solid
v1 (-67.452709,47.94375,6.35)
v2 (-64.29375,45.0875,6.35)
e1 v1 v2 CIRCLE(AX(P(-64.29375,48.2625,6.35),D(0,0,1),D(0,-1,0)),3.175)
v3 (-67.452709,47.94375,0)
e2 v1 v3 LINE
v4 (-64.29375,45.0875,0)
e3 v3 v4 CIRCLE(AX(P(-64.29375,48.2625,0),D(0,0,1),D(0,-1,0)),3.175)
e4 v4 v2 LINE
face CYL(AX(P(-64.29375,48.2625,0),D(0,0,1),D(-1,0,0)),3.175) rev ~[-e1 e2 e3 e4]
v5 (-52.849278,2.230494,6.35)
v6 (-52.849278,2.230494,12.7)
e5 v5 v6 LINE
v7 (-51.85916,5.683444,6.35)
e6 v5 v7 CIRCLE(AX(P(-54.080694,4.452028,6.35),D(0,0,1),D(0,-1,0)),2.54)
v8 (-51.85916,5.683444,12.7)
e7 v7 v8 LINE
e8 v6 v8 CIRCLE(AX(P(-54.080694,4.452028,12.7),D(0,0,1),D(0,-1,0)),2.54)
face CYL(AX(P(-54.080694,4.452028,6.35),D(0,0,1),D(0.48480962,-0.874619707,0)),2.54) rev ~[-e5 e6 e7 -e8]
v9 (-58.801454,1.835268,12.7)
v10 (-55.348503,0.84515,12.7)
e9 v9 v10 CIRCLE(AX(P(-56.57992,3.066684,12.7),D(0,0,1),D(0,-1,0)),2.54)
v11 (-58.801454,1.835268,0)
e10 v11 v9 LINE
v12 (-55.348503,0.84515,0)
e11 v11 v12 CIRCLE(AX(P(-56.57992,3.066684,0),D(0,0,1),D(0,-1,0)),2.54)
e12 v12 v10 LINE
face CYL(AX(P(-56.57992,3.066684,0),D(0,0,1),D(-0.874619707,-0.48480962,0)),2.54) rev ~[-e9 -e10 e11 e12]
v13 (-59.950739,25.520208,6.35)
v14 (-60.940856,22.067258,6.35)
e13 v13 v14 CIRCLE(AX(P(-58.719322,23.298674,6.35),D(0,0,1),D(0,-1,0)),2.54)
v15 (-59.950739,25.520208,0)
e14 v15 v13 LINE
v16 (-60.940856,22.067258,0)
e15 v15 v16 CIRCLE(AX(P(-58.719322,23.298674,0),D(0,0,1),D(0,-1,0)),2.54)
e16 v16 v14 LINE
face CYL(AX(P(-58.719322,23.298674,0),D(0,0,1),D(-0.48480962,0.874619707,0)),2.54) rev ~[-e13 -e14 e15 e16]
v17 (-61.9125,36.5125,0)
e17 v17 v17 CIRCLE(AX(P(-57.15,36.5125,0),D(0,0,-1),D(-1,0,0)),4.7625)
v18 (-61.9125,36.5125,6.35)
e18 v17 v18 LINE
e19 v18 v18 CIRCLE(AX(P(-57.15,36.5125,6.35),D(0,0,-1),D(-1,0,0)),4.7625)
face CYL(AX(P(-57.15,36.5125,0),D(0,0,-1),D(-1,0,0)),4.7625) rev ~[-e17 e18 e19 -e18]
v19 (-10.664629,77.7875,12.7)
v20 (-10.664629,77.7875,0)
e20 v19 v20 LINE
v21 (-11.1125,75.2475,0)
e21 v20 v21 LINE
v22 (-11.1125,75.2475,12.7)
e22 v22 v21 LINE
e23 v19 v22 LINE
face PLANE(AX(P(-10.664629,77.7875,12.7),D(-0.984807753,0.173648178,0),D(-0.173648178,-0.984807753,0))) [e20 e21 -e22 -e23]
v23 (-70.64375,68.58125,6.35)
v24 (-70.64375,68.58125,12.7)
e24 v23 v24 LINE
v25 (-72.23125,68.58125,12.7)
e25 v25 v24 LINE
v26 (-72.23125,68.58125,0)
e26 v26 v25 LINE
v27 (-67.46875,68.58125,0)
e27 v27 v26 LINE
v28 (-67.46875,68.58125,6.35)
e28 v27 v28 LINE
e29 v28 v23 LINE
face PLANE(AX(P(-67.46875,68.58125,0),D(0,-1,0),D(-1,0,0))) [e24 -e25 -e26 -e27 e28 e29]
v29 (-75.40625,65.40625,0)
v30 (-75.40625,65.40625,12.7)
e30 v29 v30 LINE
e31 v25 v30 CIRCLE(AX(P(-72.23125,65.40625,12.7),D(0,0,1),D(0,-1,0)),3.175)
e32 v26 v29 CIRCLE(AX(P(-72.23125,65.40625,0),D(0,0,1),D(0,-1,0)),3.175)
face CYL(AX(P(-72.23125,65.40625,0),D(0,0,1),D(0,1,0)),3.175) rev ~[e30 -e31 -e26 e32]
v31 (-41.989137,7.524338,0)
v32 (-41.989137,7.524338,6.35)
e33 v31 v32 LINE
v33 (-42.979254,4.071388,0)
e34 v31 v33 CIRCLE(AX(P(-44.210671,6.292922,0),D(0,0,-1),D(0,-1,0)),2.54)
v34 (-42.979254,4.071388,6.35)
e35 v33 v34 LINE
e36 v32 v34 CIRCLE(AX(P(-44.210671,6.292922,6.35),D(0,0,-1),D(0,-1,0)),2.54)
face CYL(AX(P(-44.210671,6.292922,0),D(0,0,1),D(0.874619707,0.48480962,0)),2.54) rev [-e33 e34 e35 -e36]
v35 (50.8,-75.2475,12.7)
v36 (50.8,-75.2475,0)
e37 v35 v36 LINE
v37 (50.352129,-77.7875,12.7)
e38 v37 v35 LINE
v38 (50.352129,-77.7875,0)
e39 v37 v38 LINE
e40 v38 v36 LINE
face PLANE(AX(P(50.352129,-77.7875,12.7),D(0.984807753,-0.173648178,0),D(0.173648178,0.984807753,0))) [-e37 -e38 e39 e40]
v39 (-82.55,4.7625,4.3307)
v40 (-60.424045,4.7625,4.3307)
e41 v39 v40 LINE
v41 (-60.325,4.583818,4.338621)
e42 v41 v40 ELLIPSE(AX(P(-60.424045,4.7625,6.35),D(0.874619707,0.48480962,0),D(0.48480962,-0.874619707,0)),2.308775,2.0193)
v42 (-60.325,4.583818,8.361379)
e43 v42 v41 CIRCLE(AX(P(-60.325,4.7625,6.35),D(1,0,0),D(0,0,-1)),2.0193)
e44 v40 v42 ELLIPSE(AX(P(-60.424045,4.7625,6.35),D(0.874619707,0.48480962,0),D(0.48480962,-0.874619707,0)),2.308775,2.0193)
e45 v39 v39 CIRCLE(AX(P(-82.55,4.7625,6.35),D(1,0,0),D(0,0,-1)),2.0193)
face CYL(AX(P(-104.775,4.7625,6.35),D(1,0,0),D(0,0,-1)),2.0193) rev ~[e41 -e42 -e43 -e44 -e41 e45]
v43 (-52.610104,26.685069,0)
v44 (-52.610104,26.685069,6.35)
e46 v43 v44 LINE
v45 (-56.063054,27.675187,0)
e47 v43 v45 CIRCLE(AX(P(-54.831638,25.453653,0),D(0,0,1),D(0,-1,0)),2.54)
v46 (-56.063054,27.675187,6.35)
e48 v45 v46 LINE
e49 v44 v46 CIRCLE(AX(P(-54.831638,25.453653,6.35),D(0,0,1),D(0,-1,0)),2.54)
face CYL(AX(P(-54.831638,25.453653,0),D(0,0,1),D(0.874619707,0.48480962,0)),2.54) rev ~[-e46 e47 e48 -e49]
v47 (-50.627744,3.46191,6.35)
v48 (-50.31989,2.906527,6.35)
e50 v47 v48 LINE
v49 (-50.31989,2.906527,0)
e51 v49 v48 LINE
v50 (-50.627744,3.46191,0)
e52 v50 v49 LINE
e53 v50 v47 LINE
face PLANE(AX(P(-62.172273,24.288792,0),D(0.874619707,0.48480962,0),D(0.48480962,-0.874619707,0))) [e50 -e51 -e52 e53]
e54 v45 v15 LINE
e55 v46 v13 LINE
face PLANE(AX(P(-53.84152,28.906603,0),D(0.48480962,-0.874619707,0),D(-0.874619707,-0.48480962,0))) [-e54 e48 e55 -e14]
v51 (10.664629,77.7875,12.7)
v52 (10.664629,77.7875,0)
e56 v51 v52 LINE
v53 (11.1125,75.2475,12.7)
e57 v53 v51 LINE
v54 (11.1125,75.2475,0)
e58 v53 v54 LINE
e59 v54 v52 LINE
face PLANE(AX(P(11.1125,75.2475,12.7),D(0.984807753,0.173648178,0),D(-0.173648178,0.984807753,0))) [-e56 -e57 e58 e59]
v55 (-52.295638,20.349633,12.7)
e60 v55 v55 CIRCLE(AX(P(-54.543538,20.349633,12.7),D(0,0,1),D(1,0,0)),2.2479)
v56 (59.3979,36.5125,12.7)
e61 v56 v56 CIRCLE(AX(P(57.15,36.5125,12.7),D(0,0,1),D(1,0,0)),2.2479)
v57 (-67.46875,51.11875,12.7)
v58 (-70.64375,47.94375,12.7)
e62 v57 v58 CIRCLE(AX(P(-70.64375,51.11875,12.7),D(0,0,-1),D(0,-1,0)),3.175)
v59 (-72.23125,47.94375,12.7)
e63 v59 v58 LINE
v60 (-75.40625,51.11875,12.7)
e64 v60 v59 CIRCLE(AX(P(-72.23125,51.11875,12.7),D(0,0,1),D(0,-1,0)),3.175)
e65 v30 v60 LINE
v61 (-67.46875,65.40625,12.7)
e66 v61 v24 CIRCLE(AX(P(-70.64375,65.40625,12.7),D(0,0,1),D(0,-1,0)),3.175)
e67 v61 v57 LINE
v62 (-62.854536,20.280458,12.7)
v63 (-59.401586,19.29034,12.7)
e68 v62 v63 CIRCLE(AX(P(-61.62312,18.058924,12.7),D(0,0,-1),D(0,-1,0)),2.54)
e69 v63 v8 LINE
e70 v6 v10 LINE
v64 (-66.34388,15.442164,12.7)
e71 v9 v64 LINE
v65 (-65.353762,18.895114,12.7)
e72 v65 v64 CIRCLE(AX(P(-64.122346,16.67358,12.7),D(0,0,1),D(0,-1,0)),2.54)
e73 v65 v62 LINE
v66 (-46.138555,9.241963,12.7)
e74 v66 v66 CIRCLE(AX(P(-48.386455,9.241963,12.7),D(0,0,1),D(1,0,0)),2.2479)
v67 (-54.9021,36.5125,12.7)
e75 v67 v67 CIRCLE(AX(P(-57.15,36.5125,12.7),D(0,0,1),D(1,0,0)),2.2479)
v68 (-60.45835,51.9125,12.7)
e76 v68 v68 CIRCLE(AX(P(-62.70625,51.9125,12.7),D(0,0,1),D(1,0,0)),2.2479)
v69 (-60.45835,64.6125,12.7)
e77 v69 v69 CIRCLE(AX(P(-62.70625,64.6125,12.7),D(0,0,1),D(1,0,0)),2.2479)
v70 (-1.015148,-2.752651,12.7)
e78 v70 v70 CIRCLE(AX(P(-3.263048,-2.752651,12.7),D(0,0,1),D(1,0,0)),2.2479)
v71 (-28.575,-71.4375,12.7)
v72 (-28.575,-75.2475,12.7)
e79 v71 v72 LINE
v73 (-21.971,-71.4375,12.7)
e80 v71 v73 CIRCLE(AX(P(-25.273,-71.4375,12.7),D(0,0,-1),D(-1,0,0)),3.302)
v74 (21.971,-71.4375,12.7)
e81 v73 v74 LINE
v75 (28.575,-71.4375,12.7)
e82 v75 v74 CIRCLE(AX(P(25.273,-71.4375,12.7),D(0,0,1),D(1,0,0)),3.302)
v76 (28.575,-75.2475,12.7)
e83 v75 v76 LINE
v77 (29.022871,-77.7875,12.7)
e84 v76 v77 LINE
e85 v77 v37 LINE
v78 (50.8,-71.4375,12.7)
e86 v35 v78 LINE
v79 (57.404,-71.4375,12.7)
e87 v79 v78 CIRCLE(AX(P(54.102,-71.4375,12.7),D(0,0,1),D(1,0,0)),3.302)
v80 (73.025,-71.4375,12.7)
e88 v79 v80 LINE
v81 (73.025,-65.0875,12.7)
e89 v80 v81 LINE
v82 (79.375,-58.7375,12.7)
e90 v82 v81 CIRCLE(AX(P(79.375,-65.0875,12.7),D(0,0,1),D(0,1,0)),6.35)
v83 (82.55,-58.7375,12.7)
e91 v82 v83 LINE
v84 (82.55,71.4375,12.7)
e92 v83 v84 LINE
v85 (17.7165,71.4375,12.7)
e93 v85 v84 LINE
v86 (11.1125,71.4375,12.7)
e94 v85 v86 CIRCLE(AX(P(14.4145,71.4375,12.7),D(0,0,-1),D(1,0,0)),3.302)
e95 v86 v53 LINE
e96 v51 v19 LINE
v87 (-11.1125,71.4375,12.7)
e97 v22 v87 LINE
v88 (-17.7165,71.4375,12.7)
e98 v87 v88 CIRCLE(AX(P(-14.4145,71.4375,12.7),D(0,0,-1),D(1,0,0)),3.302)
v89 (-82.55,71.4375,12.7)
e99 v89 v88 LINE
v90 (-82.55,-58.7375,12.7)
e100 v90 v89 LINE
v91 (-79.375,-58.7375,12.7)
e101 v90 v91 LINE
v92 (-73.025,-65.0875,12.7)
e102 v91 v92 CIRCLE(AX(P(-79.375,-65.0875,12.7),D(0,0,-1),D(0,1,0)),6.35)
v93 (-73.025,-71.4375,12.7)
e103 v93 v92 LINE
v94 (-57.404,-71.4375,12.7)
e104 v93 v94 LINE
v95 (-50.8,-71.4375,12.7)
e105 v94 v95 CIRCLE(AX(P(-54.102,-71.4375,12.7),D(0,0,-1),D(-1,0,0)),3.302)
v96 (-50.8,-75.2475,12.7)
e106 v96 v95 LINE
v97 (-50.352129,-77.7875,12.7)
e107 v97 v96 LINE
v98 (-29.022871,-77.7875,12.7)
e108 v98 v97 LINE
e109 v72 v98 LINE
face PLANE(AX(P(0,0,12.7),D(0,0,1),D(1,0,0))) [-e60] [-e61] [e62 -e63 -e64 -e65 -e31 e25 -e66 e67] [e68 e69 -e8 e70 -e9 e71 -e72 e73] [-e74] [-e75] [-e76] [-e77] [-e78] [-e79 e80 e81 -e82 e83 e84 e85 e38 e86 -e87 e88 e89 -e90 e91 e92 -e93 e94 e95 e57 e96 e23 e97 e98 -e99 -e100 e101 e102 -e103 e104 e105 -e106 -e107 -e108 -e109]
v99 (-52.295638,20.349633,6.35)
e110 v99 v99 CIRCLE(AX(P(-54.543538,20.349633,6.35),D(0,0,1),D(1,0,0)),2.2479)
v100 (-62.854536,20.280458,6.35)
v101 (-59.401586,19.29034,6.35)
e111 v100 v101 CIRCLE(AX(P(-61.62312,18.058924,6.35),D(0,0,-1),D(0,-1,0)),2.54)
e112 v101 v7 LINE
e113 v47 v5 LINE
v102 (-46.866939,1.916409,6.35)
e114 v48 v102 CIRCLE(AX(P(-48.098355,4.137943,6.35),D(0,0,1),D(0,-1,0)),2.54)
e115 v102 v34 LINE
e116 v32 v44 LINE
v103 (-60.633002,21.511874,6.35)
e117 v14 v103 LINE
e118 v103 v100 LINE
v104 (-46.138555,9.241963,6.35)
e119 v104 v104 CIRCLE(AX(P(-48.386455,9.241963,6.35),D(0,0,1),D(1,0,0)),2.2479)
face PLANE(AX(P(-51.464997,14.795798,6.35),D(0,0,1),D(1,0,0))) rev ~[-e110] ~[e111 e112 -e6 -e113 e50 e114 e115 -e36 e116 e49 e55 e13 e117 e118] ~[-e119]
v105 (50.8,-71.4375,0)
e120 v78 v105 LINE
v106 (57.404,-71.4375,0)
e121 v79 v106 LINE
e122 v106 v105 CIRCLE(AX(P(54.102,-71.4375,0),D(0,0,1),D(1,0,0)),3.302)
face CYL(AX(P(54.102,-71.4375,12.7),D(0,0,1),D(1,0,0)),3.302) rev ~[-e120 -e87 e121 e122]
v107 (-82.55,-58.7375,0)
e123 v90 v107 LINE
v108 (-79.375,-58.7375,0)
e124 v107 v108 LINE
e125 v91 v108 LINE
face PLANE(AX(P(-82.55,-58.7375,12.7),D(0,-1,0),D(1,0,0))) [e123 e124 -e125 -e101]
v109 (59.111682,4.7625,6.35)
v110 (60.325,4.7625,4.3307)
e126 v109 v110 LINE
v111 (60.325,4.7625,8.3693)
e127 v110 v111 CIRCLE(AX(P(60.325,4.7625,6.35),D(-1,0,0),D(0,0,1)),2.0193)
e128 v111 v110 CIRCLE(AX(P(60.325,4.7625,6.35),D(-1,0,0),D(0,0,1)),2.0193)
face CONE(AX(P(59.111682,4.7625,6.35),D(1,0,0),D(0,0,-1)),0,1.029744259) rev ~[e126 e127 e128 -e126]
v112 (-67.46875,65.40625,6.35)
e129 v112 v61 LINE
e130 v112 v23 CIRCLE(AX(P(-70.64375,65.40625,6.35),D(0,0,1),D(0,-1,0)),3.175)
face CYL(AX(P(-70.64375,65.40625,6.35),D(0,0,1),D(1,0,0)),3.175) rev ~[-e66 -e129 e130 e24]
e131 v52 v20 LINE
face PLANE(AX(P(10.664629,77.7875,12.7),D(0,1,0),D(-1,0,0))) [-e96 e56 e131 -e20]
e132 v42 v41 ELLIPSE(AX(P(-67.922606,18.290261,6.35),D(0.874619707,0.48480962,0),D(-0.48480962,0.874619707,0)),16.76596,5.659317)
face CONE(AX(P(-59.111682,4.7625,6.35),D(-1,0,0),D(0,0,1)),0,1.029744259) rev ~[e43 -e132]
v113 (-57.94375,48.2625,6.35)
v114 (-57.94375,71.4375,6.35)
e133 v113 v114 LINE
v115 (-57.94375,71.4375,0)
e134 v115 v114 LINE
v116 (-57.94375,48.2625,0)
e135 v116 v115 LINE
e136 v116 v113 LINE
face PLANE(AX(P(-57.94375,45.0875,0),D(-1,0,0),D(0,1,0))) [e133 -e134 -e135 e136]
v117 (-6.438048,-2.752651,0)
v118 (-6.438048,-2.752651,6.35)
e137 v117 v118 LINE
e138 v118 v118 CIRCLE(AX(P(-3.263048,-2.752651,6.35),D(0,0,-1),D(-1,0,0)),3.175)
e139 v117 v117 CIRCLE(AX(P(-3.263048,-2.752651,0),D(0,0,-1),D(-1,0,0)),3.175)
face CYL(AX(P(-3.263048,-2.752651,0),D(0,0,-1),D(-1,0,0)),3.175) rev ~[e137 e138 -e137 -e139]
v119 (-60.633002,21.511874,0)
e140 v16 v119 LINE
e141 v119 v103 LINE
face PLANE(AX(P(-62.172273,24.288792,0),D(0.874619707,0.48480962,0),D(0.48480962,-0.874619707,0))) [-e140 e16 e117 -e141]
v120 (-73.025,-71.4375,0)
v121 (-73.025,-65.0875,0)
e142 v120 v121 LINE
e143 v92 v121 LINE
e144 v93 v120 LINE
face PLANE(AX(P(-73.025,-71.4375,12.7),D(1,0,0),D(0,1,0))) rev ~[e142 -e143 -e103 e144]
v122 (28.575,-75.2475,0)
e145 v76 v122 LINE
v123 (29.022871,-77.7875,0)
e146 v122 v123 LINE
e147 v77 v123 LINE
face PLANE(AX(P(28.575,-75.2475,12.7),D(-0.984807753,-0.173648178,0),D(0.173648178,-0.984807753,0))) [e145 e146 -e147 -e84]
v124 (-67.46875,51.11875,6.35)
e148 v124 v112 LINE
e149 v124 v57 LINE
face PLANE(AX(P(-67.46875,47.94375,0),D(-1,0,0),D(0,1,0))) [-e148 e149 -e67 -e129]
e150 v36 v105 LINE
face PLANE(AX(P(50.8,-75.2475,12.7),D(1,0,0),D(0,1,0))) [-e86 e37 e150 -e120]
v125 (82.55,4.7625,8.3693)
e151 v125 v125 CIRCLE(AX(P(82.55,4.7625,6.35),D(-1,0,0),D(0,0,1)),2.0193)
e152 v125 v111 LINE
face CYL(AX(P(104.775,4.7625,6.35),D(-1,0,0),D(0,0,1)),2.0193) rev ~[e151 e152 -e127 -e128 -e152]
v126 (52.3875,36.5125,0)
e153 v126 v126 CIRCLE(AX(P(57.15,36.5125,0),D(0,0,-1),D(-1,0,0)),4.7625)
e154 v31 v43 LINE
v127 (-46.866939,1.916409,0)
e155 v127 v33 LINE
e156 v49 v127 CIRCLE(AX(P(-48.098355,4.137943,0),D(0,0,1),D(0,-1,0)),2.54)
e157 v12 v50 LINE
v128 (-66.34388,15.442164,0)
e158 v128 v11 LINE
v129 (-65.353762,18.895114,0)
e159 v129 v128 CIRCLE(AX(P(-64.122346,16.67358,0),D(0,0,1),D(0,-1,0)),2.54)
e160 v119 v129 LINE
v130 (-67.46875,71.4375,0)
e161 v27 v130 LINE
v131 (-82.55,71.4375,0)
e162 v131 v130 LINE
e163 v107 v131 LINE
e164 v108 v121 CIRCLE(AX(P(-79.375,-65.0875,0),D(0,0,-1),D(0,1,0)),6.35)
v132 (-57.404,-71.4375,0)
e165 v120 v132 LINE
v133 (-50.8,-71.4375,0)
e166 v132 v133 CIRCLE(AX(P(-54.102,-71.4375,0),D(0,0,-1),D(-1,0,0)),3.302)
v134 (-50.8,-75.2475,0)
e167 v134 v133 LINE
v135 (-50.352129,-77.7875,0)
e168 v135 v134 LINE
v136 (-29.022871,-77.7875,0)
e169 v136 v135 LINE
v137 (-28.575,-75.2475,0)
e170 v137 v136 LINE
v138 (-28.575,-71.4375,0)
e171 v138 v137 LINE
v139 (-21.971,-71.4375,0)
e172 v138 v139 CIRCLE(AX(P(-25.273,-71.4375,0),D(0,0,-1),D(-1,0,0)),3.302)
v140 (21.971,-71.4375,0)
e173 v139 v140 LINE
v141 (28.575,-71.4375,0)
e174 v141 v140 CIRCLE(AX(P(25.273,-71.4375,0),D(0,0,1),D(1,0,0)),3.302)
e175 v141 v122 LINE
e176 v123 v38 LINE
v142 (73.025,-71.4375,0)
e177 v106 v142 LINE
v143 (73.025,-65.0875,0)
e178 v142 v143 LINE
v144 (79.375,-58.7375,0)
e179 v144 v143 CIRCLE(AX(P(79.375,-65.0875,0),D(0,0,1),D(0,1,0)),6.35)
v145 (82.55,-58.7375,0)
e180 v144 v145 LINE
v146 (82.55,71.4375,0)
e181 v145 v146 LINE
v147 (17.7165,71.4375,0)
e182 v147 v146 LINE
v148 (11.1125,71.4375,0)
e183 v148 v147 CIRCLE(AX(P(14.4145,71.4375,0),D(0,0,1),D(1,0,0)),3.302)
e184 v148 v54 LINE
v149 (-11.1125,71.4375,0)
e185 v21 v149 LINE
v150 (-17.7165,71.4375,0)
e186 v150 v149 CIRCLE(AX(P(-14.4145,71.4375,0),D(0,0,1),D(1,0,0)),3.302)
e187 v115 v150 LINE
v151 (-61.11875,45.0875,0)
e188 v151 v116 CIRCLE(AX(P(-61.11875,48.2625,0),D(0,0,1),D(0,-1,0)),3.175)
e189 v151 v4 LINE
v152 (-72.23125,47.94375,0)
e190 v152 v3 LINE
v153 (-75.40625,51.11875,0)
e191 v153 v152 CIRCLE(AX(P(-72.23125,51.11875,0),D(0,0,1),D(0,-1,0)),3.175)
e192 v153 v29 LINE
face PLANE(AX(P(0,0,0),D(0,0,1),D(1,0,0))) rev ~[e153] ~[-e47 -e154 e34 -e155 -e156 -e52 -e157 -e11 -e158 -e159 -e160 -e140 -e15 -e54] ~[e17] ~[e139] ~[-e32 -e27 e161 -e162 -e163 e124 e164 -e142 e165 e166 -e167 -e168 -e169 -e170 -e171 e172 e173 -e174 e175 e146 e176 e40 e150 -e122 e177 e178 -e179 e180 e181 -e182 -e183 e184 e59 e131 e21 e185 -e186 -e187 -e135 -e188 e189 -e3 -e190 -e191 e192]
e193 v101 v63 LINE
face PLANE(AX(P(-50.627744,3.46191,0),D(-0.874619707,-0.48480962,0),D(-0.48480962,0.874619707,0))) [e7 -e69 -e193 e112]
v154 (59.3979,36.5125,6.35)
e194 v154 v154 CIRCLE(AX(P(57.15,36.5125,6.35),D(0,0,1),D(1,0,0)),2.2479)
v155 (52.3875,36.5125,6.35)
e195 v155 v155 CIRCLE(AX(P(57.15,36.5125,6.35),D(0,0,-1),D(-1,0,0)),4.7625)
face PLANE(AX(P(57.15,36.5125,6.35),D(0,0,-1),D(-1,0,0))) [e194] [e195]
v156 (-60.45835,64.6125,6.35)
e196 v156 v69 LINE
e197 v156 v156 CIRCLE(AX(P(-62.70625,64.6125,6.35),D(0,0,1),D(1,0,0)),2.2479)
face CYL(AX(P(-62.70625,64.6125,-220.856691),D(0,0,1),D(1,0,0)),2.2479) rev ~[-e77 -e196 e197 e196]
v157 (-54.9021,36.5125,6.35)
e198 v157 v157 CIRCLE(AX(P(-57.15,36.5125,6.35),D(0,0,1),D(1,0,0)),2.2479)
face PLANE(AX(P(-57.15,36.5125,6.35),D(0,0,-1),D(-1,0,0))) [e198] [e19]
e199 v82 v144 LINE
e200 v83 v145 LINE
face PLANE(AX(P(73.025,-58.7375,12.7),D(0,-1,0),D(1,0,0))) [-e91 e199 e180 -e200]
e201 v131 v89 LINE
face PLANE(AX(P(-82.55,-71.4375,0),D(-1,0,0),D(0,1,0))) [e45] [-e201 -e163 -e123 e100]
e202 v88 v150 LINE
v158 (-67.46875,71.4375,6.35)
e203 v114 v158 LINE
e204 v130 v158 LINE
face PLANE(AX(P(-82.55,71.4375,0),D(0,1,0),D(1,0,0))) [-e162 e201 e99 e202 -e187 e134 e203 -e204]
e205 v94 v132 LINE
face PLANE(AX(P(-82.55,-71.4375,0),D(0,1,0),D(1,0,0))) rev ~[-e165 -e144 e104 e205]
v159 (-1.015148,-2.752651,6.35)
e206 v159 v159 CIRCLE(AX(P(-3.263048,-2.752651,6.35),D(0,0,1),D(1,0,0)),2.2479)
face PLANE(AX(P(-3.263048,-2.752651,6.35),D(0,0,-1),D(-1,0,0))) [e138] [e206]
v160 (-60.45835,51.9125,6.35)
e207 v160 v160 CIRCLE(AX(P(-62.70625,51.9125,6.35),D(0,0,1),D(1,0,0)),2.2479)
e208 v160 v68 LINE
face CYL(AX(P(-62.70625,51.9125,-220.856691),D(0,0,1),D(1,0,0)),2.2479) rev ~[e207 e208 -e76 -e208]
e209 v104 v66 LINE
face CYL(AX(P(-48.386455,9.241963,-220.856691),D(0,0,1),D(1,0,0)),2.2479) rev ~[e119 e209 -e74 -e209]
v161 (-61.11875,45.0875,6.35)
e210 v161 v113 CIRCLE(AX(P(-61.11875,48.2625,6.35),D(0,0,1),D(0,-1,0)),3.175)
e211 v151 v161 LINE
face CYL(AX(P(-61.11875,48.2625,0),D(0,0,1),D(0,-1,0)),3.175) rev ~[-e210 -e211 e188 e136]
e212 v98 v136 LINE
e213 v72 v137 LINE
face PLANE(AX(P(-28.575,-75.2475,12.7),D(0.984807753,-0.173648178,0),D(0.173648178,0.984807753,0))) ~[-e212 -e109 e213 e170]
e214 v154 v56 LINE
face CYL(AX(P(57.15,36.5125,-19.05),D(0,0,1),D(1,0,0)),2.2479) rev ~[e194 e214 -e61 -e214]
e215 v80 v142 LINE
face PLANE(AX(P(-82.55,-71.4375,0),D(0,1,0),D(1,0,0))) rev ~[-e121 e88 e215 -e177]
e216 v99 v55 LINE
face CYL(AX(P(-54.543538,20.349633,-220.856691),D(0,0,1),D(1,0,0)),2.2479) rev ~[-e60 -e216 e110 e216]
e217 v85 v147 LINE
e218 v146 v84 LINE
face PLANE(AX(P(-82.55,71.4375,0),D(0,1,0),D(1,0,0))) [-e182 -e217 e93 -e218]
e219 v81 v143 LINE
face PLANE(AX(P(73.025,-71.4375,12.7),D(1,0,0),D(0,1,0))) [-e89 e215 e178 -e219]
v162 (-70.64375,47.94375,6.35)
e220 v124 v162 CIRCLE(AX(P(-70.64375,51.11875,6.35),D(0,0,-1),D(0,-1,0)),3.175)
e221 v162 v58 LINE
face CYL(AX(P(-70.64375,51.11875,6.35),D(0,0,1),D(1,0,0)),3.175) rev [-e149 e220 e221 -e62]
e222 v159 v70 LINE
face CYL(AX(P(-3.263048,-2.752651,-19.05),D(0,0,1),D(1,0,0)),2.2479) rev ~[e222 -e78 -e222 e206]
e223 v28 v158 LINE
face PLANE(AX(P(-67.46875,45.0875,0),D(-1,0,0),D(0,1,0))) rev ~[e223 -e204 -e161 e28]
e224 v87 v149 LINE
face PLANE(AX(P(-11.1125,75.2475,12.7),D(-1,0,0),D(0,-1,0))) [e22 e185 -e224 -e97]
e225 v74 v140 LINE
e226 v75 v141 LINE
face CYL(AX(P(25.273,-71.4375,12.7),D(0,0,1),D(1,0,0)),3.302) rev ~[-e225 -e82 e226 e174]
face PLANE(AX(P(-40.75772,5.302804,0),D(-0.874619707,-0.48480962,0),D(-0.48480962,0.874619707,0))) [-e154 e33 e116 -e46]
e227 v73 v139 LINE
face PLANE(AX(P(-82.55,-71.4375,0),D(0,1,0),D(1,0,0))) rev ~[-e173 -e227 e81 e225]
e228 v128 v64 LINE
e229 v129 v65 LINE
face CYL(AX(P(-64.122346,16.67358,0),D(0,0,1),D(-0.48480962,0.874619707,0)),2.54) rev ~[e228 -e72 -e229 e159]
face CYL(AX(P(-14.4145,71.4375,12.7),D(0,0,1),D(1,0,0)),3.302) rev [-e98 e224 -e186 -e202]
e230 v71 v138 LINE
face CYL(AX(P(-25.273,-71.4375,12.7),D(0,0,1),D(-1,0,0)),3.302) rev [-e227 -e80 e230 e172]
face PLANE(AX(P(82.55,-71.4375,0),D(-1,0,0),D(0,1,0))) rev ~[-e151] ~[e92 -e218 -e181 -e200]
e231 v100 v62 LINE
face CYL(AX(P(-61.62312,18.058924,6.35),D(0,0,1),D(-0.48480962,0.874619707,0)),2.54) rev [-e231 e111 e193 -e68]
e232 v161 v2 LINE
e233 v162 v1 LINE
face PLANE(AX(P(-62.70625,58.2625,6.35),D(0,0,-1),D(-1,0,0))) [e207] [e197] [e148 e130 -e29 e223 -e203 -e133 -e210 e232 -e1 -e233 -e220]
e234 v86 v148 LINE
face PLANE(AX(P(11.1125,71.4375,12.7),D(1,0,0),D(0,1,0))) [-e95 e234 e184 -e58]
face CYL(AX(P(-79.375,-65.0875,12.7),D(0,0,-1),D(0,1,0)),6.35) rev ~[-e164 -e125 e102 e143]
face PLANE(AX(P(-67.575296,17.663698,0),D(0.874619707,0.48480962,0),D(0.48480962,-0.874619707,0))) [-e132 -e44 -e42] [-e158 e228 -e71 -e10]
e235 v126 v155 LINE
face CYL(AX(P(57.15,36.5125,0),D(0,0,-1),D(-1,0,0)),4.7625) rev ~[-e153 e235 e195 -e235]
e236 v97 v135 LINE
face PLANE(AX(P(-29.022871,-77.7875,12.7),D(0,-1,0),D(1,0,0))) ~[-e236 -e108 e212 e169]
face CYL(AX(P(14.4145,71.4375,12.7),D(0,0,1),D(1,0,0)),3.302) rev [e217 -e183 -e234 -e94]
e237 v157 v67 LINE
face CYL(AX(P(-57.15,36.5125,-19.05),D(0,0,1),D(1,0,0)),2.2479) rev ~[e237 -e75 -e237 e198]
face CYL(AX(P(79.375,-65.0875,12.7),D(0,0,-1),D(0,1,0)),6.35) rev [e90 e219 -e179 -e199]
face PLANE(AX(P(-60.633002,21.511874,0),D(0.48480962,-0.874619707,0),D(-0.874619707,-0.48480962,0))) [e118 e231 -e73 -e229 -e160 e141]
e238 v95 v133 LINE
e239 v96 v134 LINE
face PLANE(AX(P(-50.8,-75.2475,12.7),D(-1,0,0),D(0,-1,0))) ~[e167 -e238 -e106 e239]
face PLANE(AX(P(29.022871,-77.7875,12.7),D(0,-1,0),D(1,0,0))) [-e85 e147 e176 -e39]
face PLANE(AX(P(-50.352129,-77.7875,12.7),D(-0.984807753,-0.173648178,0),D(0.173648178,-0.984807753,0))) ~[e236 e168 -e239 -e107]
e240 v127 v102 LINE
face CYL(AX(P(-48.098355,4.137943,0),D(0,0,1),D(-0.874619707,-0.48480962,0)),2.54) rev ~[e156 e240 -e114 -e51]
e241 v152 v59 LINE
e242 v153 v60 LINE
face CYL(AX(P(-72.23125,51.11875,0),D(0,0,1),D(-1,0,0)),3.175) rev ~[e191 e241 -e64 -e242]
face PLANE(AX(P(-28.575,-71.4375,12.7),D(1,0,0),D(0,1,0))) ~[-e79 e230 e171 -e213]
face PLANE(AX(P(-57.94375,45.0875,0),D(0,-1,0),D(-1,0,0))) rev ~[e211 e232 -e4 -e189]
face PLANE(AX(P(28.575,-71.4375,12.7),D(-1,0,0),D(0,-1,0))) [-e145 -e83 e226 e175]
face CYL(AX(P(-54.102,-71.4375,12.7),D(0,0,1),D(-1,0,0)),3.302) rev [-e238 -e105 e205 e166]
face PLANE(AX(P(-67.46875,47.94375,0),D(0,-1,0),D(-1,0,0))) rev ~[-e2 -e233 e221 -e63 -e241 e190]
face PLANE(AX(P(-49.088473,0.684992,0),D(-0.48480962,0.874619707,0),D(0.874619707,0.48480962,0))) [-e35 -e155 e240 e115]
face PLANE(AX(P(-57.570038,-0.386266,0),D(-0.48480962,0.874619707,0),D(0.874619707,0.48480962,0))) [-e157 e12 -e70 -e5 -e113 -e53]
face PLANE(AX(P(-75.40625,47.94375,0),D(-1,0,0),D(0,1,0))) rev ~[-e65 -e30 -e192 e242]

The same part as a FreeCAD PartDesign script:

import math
import FreeCAD as App
import Part
import Sketcher
Q = App.Units.Quantity


def edges_at(feature, points):
    """Names of the edges that pass closest to the given points."""
    edges = feature.Shape.Edges
    near = lambda p: min(range(len(edges)), key=lambda i: edges[i].distToShape(Part.Vertex(*p))[0])
    return sorted({f"Edge{near(p) + 1}" for p in points})

doc = App.newDocument("Part")
body = doc.addObject("PartDesign::Body", "Body")

# Sketch on XY plane
sketch1 = body.newObject("Sketcher::SketchObject", "Sketch")
sketch1.AttachmentSupport = (doc.getObject("XY_Plane"), [""])
sketch1.MapMode = "FlatFace"
sketch1.addGeometry([
    Part.LineSegment(App.Vector(-83, 71, 0), App.Vector(-83, -71, 0)),
    Part.LineSegment(App.Vector(-83, -71, 0), App.Vector(83, -71, 0)),
    Part.LineSegment(App.Vector(83, -71, 0), App.Vector(83, 71, 0)),
    Part.LineSegment(App.Vector(83, 71, 0), App.Vector(-83, 71, 0)),
], False)
sketch1.addConstraint([
    Sketcher.Constraint("Coincident", 0, 2, 1, 1),
    Sketcher.Constraint("Coincident", 1, 2, 2, 1),
    Sketcher.Constraint("Coincident", 2, 2, 3, 1),
    Sketcher.Constraint("Coincident", 3, 2, 0, 1),
    Sketcher.Constraint("Vertical", 0),
    Sketcher.Constraint("Horizontal", 1),
    Sketcher.Constraint("Vertical", 2),
    Sketcher.Constraint("Horizontal", 3),
    Sketcher.Constraint("Symmetric", 0, 2, 2, 2, -1, 1),
    Sketcher.Constraint("DistanceX", 1, 1, 1, 2, Q("6.5 in")),
    Sketcher.Constraint("DistanceY", 0, 2, 0, 1, Q("5.625 in")),
])
pad1 = body.newObject("PartDesign::Pad", "Pad")
pad1.Profile = sketch1
pad1.Length = Q("0.5 in")

# Sketch on XY plane
sketch2 = body.newObject("Sketcher::SketchObject", "Sketch001")
sketch2.AttachmentSupport = (doc.getObject("XY_Plane"), [""])
sketch2.MapMode = "FlatFace"
sketch2.AttachmentOffset = App.Placement(App.Vector(0, 0, 0.5 * 25.4), App.Rotation())
sketch2.addGeometry([
    Part.LineSegment(App.Vector(-11.1, 71.4, 0), App.Vector(11.1, 71.4, 0)),  # 0
    Part.LineSegment(App.Vector(11.1, 71.4, 0), App.Vector(11.1, 75.2, 0)),  # 1
    Part.LineSegment(App.Vector(11.1, 75.2, 0), App.Vector(10.7, 77.8, 0)),  # 2
    Part.LineSegment(App.Vector(10.7, 77.8, 0), App.Vector(-10.7, 77.8, 0)),  # 3
    Part.LineSegment(App.Vector(-10.7, 77.8, 0), App.Vector(-11.1, 75.2, 0)),  # 4
    Part.LineSegment(App.Vector(-11.1, 75.2, 0), App.Vector(-11.1, 71.4, 0)),  # 5
], False)
sketch2.addConstraint([
    Sketcher.Constraint("Coincident", 0, 2, 1, 1),
    Sketcher.Constraint("Coincident", 1, 2, 2, 1),
    Sketcher.Constraint("Coincident", 2, 2, 3, 1),
    Sketcher.Constraint("Coincident", 3, 2, 4, 1),
    Sketcher.Constraint("Coincident", 4, 2, 5, 1),
    Sketcher.Constraint("Coincident", 5, 2, 0, 1),
    Sketcher.Constraint("Horizontal", 0),
    Sketcher.Constraint("Vertical", 1),
    Sketcher.Constraint("Horizontal", 3),
    Sketcher.Constraint("Vertical", 5),
    Sketcher.Constraint("Symmetric", 1, 2, 4, 2, -2),
    Sketcher.Constraint("Equal", 2, 4),
    Sketcher.Constraint("Angle", 2, Q("100 deg")),
    Sketcher.Constraint("DistanceY", 1, 1, 1, 2, Q("0.15 in")),
    Sketcher.Constraint("DistanceY", 1, 2, 2, 2, Q("0.1 in")),
    Sketcher.Constraint("DistanceX", 0, 1, 0, 2, Q("0.875 in")),
    Sketcher.Constraint("DistanceY", -1, 1, 0, 2, Q("2.8125 in")),
])
pad2 = body.newObject("PartDesign::Pad", "Pad001")
pad2.Profile = sketch2
pad2.Length = Q("0.5 in")
pad2.Reversed = True

# Sketch on XY plane
sketch3 = body.newObject("Sketcher::SketchObject", "Sketch002")
sketch3.AttachmentSupport = (doc.getObject("XY_Plane"), [""])
sketch3.MapMode = "FlatFace"
sketch3.AttachmentOffset = App.Placement(App.Vector(0, 0, 0.5 * 25.4), App.Rotation())
sketch3.addGeometry([
    Part.LineSegment(App.Vector(-11.1, 71.4, 0), App.Vector(-17.7, 71.4, 0)),
    Part.ArcOfCircle(Part.Circle(App.Vector(-14.4, 71.4, 0), App.Vector(0, 0, 1), 3.3), math.radians(180), math.radians(360)),
], False)
sketch3.addConstraint([
    Sketcher.Constraint("Coincident", 0, 1, 1, 2),
    Sketcher.Constraint("Coincident", 1, 1, 0, 2),
    Sketcher.Constraint("Horizontal", 0),
    Sketcher.Constraint("Horizontal", 1, 3, 0, 1),
    Sketcher.Constraint("Radius", 1, Q("0.13 in")),
    Sketcher.Constraint("DistanceY", -1, 1, 1, 3, Q("2.8125 in")),
    Sketcher.Constraint("DistanceX", 0, 1, -1, 1, Q("0.4375 in")),
])
pocket1 = body.newObject("PartDesign::Pocket", "Pocket")
pocket1.Profile = sketch3
pocket1.Type = "UpToFirst"

# Sketch on XY plane
sketch4 = body.newObject("Sketcher::SketchObject", "Sketch003")
sketch4.AttachmentSupport = (doc.getObject("XY_Plane"), [""])
sketch4.MapMode = "FlatFace"
sketch4.AttachmentOffset = App.Placement(App.Vector(0, 0, 0.5 * 25.4), App.Rotation())
sketch4.addGeometry([
    Part.LineSegment(App.Vector(17.7, 71.4, 0), App.Vector(11.1, 71.4, 0)),
    Part.ArcOfCircle(Part.Circle(App.Vector(14.4, 71.4, 0), App.Vector(0, 0, 1), 3.3), math.radians(180), math.radians(360)),
], False)
sketch4.addConstraint([
    Sketcher.Constraint("Coincident", 0, 1, 1, 2),
    Sketcher.Constraint("Coincident", 1, 1, 0, 2),
    Sketcher.Constraint("Horizontal", 0),
    Sketcher.Constraint("Horizontal", 1, 3, 0, 1),
    Sketcher.Constraint("Radius", 1, Q("0.13 in")),
    Sketcher.Constraint("DistanceY", -1, 1, 1, 3, Q("2.8125 in")),
    Sketcher.Constraint("DistanceX", -1, 1, 1, 1, Q("0.4375 in")),
])
pocket2 = body.newObject("PartDesign::Pocket", "Pocket001")
pocket2.Profile = sketch4
pocket2.Type = "UpToFirst"

# Sketch on XY plane
sketch5 = body.newObject("Sketcher::SketchObject", "Sketch004")
sketch5.AttachmentSupport = (doc.getObject("XY_Plane"), [""])
sketch5.MapMode = "FlatFace"
sketch5.AttachmentOffset = App.Placement(App.Vector(0, 0, 0.5 * 25.4), App.Rotation())
sketch5.addGeometry([
    Part.LineSegment(App.Vector(50.8, -71.4, 0), App.Vector(28.6, -71.4, 0)),  # 0
    Part.LineSegment(App.Vector(28.6, -71.4, 0), App.Vector(28.6, -75.2, 0)),  # 1
    Part.LineSegment(App.Vector(28.6, -75.2, 0), App.Vector(29, -77.8, 0)),  # 2
    Part.LineSegment(App.Vector(29, -77.8, 0), App.Vector(50.4, -77.8, 0)),  # 3
    Part.LineSegment(App.Vector(50.4, -77.8, 0), App.Vector(50.8, -75.2, 0)),  # 4
    Part.LineSegment(App.Vector(50.8, -75.2, 0), App.Vector(50.8, -71.4, 0)),  # 5
], False)
sketch5.addConstraint([
    Sketcher.Constraint("Coincident", 0, 2, 1, 1),
    Sketcher.Constraint("Coincident", 1, 2, 2, 1),
    Sketcher.Constraint("Coincident", 2, 2, 3, 1),
    Sketcher.Constraint("Coincident", 3, 2, 4, 1),
    Sketcher.Constraint("Coincident", 4, 2, 5, 1),
    Sketcher.Constraint("Coincident", 5, 2, 0, 1),
    Sketcher.Constraint("Horizontal", 0),
    Sketcher.Constraint("Vertical", 1),
    Sketcher.Constraint("Horizontal", 3),
    Sketcher.Constraint("Vertical", 5),
    Sketcher.Constraint("Horizontal", 1, 2, 4, 2),
    Sketcher.Constraint("Equal", 2, 4),
    Sketcher.Constraint("DistanceX", -1, 1, 4, 2, Q("2 in")),
    Sketcher.Constraint("Angle", 2, Q("-80 deg")),
    Sketcher.Constraint("DistanceY", 1, 2, 1, 1, Q("0.15 in")),
    Sketcher.Constraint("DistanceY", 2, 2, 1, 2, Q("0.1 in")),
    Sketcher.Constraint("DistanceX", 0, 2, 0, 1, Q("0.875 in")),
    Sketcher.Constraint("DistanceY", 0, 2, -1, 1, Q("2.8125 in")),
])
pad3 = body.newObject("PartDesign::Pad", "Pad002")
pad3.Profile = sketch5
pad3.Length = Q("0.5 in")
pad3.Reversed = True

# Sketch on XY plane
sketch6 = body.newObject("Sketcher::SketchObject", "Sketch005")
sketch6.AttachmentSupport = (doc.getObject("XY_Plane"), [""])
sketch6.MapMode = "FlatFace"
sketch6.AttachmentOffset = App.Placement(App.Vector(0, 0, 0.5 * 25.4), App.Rotation())
sketch6.addGeometry([
    Part.LineSegment(App.Vector(22, -71.4, 0), App.Vector(28.6, -71.4, 0)),
    Part.ArcOfCircle(Part.Circle(App.Vector(25.3, -71.4, 0), App.Vector(0, 0, 1), 3.3), math.radians(0), math.radians(180)),
    Part.LineSegment(App.Vector(50.8, -71.4, 0), App.Vector(57.4, -71.4, 0)),
    Part.ArcOfCircle(Part.Circle(App.Vector(54.1, -71.4, 0), App.Vector(0, 0, 1), 3.3), math.radians(0), math.radians(180)),
], False)
sketch6.addConstraint([
    Sketcher.Constraint("Coincident", 0, 1, 1, 2),
    Sketcher.Constraint("Coincident", 1, 1, 0, 2),
    Sketcher.Constraint("Coincident", 2, 1, 3, 2),
    Sketcher.Constraint("Coincident", 3, 1, 2, 2),
    Sketcher.Constraint("Horizontal", 0),
    Sketcher.Constraint("Horizontal", 2),
    Sketcher.Constraint("Equal", 1, 3),
    Sketcher.Constraint("Horizontal", 1, 3, 3, 3),
    Sketcher.Constraint("Horizontal", 3, 3, 0, 1),
    Sketcher.Constraint("Horizontal", 1, 1, 2, 1),
    Sketcher.Constraint("Radius", 1, Q("0.13 in")),
    Sketcher.Constraint("DistanceX", -1, 1, 2, 1, Q("2 in")),
    Sketcher.Constraint("DistanceX", -1, 1, 1, 3, Q("0.995 in")),
    Sketcher.Constraint("DistanceY", 1, 3, -1, 1, Q("2.8125 in")),
])
pocket3 = body.newObject("PartDesign::Pocket", "Pocket002")
pocket3.Profile = sketch6
pocket3.Length = Q("0.5 in")
doc.recompute()

mirrored = body.newObject("PartDesign::Mirrored", "Mirrored")
mirrored.Originals = [pad3, pocket3]
mirrored.MirrorPlane = (doc.getObject("YZ_Plane"), [""])
body.Tip = mirrored

# Sketch on YZ plane
sketch7 = body.newObject("Sketcher::SketchObject", "Sketch006")
sketch7.AttachmentSupport = (doc.getObject("YZ_Plane"), [""])
sketch7.MapMode = "FlatFace"
sketch7.AttachmentOffset = App.Placement(App.Vector(0, 0, 3.25 * 25.4), App.Rotation())
sketch7.addGeometry(Part.Circle(App.Vector(4.8, 6.3, 0), App.Vector(0, 0, 1), 2), False)
sketch7.addConstraint([
    Sketcher.Constraint("Diameter", 0, Q("0.159 in")),
    Sketcher.Constraint("DistanceY", -1, 1, 0, 3, Q("0.25 in")),
    Sketcher.Constraint("DistanceX", -1, 1, 0, 3, Q("0.1875 in")),
])
doc.recompute()
hole = body.newObject("PartDesign::Hole", "Hole")
hole.Profile = sketch7
hole.ThreadType = "None"
hole.Diameter = Q("0.159 in")
hole.DepthType = "Dimension"
hole.Depth = Q("0.875 in")
hole.DrillPoint = "Angled"
hole.DrillPointAngle = 118

# Sketch on YZ plane
sketch8 = body.newObject("Sketcher::SketchObject", "Sketch007")
sketch8.AttachmentSupport = (doc.getObject("YZ_Plane"), [""])
sketch8.MapMode = "FlatFace"
sketch8.AttachmentOffset = App.Placement(App.Vector(0, 0, -3.25 * 25.4), App.Rotation())
sketch8.addGeometry(Part.Circle(App.Vector(4.8, 6.3, 0), App.Vector(0, 0, 1), 2), False)
sketch8.addConstraint([
    Sketcher.Constraint("Diameter", 0, Q("0.159 in")),
    Sketcher.Constraint("DistanceY", -1, 1, 0, 3, Q("0.25 in")),
    Sketcher.Constraint("DistanceX", -1, 1, 0, 3, Q("0.1875 in")),
])
doc.recompute()
hole2 = body.newObject("PartDesign::Hole", "Hole001")
hole2.Profile = sketch8
hole2.ThreadType = "None"
hole2.Diameter = Q("0.159 in")
hole2.DepthType = "Dimension"
hole2.Depth = Q("0.875 in")
hole2.DrillPoint = "Angled"
hole2.DrillPointAngle = 118
hole2.Reversed = True

# Sketch on XY plane
sketch9 = body.newObject("Sketcher::SketchObject", "Sketch008")
sketch9.AttachmentSupport = (doc.getObject("XY_Plane"), [""])
sketch9.MapMode = "FlatFace"
sketch9.addGeometry([
    Part.Circle(App.Vector(57.1, 36.5, 0), App.Vector(0, 0, 1), 4.8),
    Part.Circle(App.Vector(-57.1, 36.5, 0), App.Vector(0, 0, 1), 4.8),
    Part.Circle(App.Vector(-3.3, -2.8, 0), App.Vector(0, 0, 1), 3.2),
], False)
sketch9.addConstraint([
    Sketcher.Constraint("Equal", 0, 1),
    Sketcher.Constraint("Symmetric", 0, 3, 1, 3, -2),
    Sketcher.Constraint("Diameter", 2, Q("0.25 in")),
    Sketcher.Constraint("Diameter", 0, Q("0.375 in")),
    Sketcher.Constraint("DistanceX", 1, 3, 0, 3, Q("4.5 in")),
    Sketcher.Constraint("DistanceY", -1, 1, 0, 3, Q("1.4375 in")),
    Sketcher.Constraint("DistanceX", 2, 3, -1, 1, Q("3.263048 mm")),
    Sketcher.Constraint("DistanceY", 2, 3, -1, 1, Q("2.752651 mm")),
])
pocket4 = body.newObject("PartDesign::Pocket", "Pocket003")
pocket4.Profile = sketch9
pocket4.Length = Q("0.25 in")
pocket4.Reversed = True

# Sketch on XY plane
sketch10 = body.newObject("Sketcher::SketchObject", "Sketch009")
sketch10.AttachmentSupport = (doc.getObject("XY_Plane"), [""])
sketch10.MapMode = "FlatFace"
sketch10.addGeometry([
    Part.Circle(App.Vector(57.1, 36.5, 0), App.Vector(0, 0, 1), 2.2),
    Part.Circle(App.Vector(-3.3, -2.8, 0), App.Vector(0, 0, 1), 2.2),
    Part.Circle(App.Vector(-57.1, 36.5, 0), App.Vector(0, 0, 1), 2.2),
], False)
sketch10.addConstraint([
    Sketcher.Constraint("Equal", 0, 1),
    Sketcher.Constraint("Equal", 1, 2),
    Sketcher.Constraint("Symmetric", 0, 3, 2, 3, -2),
    Sketcher.Constraint("Diameter", 0, Q("0.177 in")),
    Sketcher.Constraint("DistanceX", 2, 3, 0, 3, Q("4.5 in")),
    Sketcher.Constraint("DistanceY", -1, 1, 0, 3, Q("1.4375 in")),
    Sketcher.Constraint("DistanceX", 1, 3, -1, 1, Q("3.263048 mm")),
    Sketcher.Constraint("DistanceY", 1, 3, -1, 1, Q("2.752651 mm")),
])
doc.recompute()
hole3 = body.newObject("PartDesign::Hole", "Hole002")
hole3.Profile = sketch10
hole3.ThreadType = "None"
hole3.Diameter = Q("0.177 in")
hole3.DepthType = "Dimension"
hole3.Depth = Q("0.75 in")
hole3.DrillPoint = "Angled"
hole3.DrillPointAngle = 118
hole3.Reversed = True

# Sketch on XY plane
sketch11 = body.newObject("Sketcher::SketchObject", "Sketch010")
sketch11.AttachmentSupport = (doc.getObject("XY_Plane"), [""])
sketch11.MapMode = "FlatFace"
sketch11.AttachmentOffset = App.Placement(App.Vector(0, 0, 0.5 * 25.4), App.Rotation())
sketch11.addGeometry([
    Part.LineSegment(App.Vector(-83, -59, 0), App.Vector(-83, -71, 0)),  # 0
    Part.LineSegment(App.Vector(-83, -71, 0), App.Vector(-73, -71, 0)),  # 1
    Part.LineSegment(App.Vector(-73, -71, 0), App.Vector(-73, -59, 0)),  # 2
    Part.LineSegment(App.Vector(-73, -59, 0), App.Vector(-83, -59, 0)),  # 3
    Part.LineSegment(App.Vector(73, -59, 0), App.Vector(73, -71, 0)),  # 4
    Part.LineSegment(App.Vector(73, -71, 0), App.Vector(83, -71, 0)),  # 5
    Part.LineSegment(App.Vector(83, -71, 0), App.Vector(83, -59, 0)),  # 6
    Part.LineSegment(App.Vector(83, -59, 0), App.Vector(73, -59, 0)),  # 7
], False)
sketch11.addConstraint([
    Sketcher.Constraint("Coincident", 0, 2, 1, 1),
    Sketcher.Constraint("Coincident", 1, 2, 2, 1),
    Sketcher.Constraint("Coincident", 2, 2, 3, 1),
    Sketcher.Constraint("Coincident", 3, 2, 0, 1),
    Sketcher.Constraint("Coincident", 4, 2, 5, 1),
    Sketcher.Constraint("Coincident", 5, 2, 6, 1),
    Sketcher.Constraint("Coincident", 6, 2, 7, 1),
    Sketcher.Constraint("Coincident", 7, 2, 4, 1),
    Sketcher.Constraint("Vertical", 0),
    Sketcher.Constraint("Horizontal", 1),
    Sketcher.Constraint("Vertical", 2),
    Sketcher.Constraint("Horizontal", 3),
    Sketcher.Constraint("Vertical", 4),
    Sketcher.Constraint("Horizontal", 5),
    Sketcher.Constraint("Vertical", 6),
    Sketcher.Constraint("Horizontal", 7),
    Sketcher.Constraint("Symmetric", 1, 2, 4, 2, -2),
    Sketcher.Constraint("Symmetric", 3, 2, 6, 2, -2),
    Sketcher.Constraint("DistanceY", 0, 2, 0, 1, Q("0.5 in")),
    Sketcher.Constraint("DistanceX", 0, 2, 5, 2, Q("6.5 in")),
    Sketcher.Constraint("DistanceX", 1, 1, 1, 2, Q("0.375 in")),
    Sketcher.Constraint("DistanceY", 0, 2, -1, 1, Q("2.8125 in")),
])
pocket5 = body.newObject("PartDesign::Pocket", "Pocket004")
pocket5.Profile = sketch11
pocket5.Type = "ThroughAll"
doc.recompute()

fillet = body.newObject("PartDesign::Fillet", "Fillet")
fillet.Base = (pocket5, edges_at(pocket5, [(-73.025, -58.737, 6.35), (73.025, -58.737, 6.35)]))
fillet.Radius = Q("0.25 in")

# Sketch on XY plane
sketch12 = body.newObject("Sketcher::SketchObject", "Sketch011")
sketch12.AttachmentSupport = (doc.getObject("XY_Plane"), [""])
sketch12.MapMode = "FlatFace"
sketch12.addGeometry([
    Part.LineSegment(App.Vector(-58, 71, 0), App.Vector(-58, 45, 0)),
    Part.LineSegment(App.Vector(-58, 45, 0), App.Vector(-67, 45, 0)),
    Part.LineSegment(App.Vector(-67, 45, 0), App.Vector(-67, 71, 0)),
    Part.LineSegment(App.Vector(-67, 71, 0), App.Vector(-58, 71, 0)),
], False)
sketch12.addConstraint([
    Sketcher.Constraint("Coincident", 0, 2, 1, 1),
    Sketcher.Constraint("Coincident", 1, 2, 2, 1),
    Sketcher.Constraint("Coincident", 2, 2, 3, 1),
    Sketcher.Constraint("Coincident", 3, 2, 0, 1),
    Sketcher.Constraint("Vertical", 0),
    Sketcher.Constraint("Horizontal", 1),
    Sketcher.Constraint("Vertical", 2),
    Sketcher.Constraint("Horizontal", 3),
    Sketcher.Constraint("DistanceX", 1, 2, 1, 1, Q("0.375 in")),
    Sketcher.Constraint("DistanceX", 0, 2, -1, 1, Q("2.28125 in")),
    Sketcher.Constraint("DistanceY", -1, 1, 2, 2, Q("2.8125 in")),
    Sketcher.Constraint("DistanceY", 0, 2, 0, 1, Q("26.35 mm")),
])
pocket6 = body.newObject("PartDesign::Pocket", "Pocket005")
pocket6.Profile = sketch12
pocket6.Length = Q("0.25 in")
pocket6.Reversed = True
doc.recompute()

fillet2 = body.newObject("PartDesign::Fillet", "Fillet001")
fillet2.Base = (pocket6, edges_at(pocket6, [(-57.944, 45.087, 3.175), (-67.469, 45.087, 3.175)]))
fillet2.Radius = Q("0.125 in")

# Sketch on XY plane
sketch13 = body.newObject("Sketcher::SketchObject", "Sketch012")
sketch13.AttachmentSupport = (doc.getObject("XY_Plane"), [""])
sketch13.MapMode = "FlatFace"
sketch13.AttachmentOffset = App.Placement(App.Vector(0, 0, 0.25 * 25.4), App.Rotation())
sketch13.addGeometry([
    Part.Circle(App.Vector(-62.7, 64.6, 0), App.Vector(0, 0, 1), 2.2),
    Part.Circle(App.Vector(-62.7, 51.9, 0), App.Vector(0, 0, 1), 2.2),
], False)
sketch13.addConstraint([
    Sketcher.Constraint("Equal", 0, 1),
    Sketcher.Constraint("Vertical", 0, 3, 1, 3),
    Sketcher.Constraint("Diameter", 0, Q("0.177 in")),
    Sketcher.Constraint("DistanceY", 1, 3, 0, 3, Q("0.5 in")),
    Sketcher.Constraint("DistanceX", 0, 3, -1, 1, Q("2.46875 in")),
    Sketcher.Constraint("DistanceY", -1, 1, 0, 3, Q("64.6125 mm")),
])
doc.recompute()
hole4 = body.newObject("PartDesign::Hole", "Hole003")
hole4.Profile = sketch13
hole4.ThreadType = "None"
hole4.Diameter = Q("0.177 in")
hole4.DepthType = "ThroughAll"
hole4.Reversed = True

# Sketch on XY plane
sketch14 = body.newObject("Sketcher::SketchObject", "Sketch013")
sketch14.AttachmentSupport = (doc.getObject("XY_Plane"), [""])
sketch14.MapMode = "FlatFace"
sketch14.addGeometry([
    Part.LineSegment(App.Vector(-67, 69, 0), App.Vector(-67, 48, 0)),
    Part.LineSegment(App.Vector(-67, 48, 0), App.Vector(-75, 48, 0)),
    Part.LineSegment(App.Vector(-75, 48, 0), App.Vector(-75, 69, 0)),
    Part.LineSegment(App.Vector(-75, 69, 0), App.Vector(-67, 69, 0)),
], False)
sketch14.addConstraint([
    Sketcher.Constraint("Coincident", 0, 2, 1, 1),
    Sketcher.Constraint("Coincident", 1, 2, 2, 1),
    Sketcher.Constraint("Coincident", 2, 2, 3, 1),
    Sketcher.Constraint("Coincident", 3, 2, 0, 1),
    Sketcher.Constraint("Vertical", 0),
    Sketcher.Constraint("Horizontal", 1),
    Sketcher.Constraint("Vertical", 2),
    Sketcher.Constraint("Horizontal", 3),
    Sketcher.Constraint("DistanceX", 1, 2, 1, 1, Q("0.3125 in")),
    Sketcher.Constraint("DistanceY", 0, 2, 0, 1, Q("0.8125 in")),
    Sketcher.Constraint("DistanceX", 0, 2, -1, 1, Q("2.65625 in")),
    Sketcher.Constraint("DistanceY", -1, 1, 0, 2, Q("47.94375 mm")),
])
pocket7 = body.newObject("PartDesign::Pocket", "Pocket006")
pocket7.Profile = sketch14
pocket7.Type = "ThroughAll"
pocket7.Reversed = True

# Sketch on XY plane
sketch15 = body.newObject("Sketcher::SketchObject", "Sketch014")
sketch15.AttachmentSupport = (doc.getObject("XY_Plane"), [""])
sketch15.MapMode = "FlatFace"
sketch15.AttachmentOffset = App.Placement(App.Vector(0, 0, 0.25 * 25.4), App.Rotation())
sketch15.addGeometry([
    Part.LineSegment(App.Vector(-67.453, 47.944, 0), App.Vector(-67.469, 47.944, 0)),
    Part.LineSegment(App.Vector(-67.469, 47.944, 0), App.Vector(-67.469, 48.262, 0)),
    Part.ArcOfCircle(Part.Circle(App.Vector(-64.294, 48.262, 0), App.Vector(0, 0, 1), 3.175), math.radians(-180), math.radians(-174.24)),
], False)
sketch15.addConstraint([
    Sketcher.Constraint("Coincident", 0, 2, 1, 1),
    Sketcher.Constraint("Tangent", 1, 2, 2, 1),
    Sketcher.Constraint("Coincident", 2, 2, 0, 1),
    Sketcher.Constraint("Horizontal", 0),
    Sketcher.Constraint("Vertical", 1),
    Sketcher.Constraint("Radius", 2, Q("0.125 in")),
    Sketcher.Constraint("DistanceX", 2, 3, -1, 1, Q("2.53125 in")),
    Sketcher.Constraint("DistanceX", 0, 2, 0, 1, Q("0.016041 mm")),
    Sketcher.Constraint("DistanceY", -1, 1, 2, 3, Q("48.2625 mm")),
])
pocket8 = body.newObject("PartDesign::Pocket", "Pocket007")
pocket8.Profile = sketch15
pocket8.Length = Q("0.25 in")
doc.recompute()

fillet3 = body.newObject("PartDesign::Fillet", "Fillet002")
fillet3.Base = (pocket8, edges_at(pocket8, [
    (-67.469, 47.944, 9.525),
    (-67.469, 68.581, 9.525),
    (-75.406, 68.581, 6.35),
    (-75.406, 47.944, 6.35),
]))
fillet3.Radius = Q("0.125 in")

# Sketch on XY plane
sketch16 = body.newObject("Sketcher::SketchObject", "Sketch015")
sketch16.AttachmentSupport = (doc.getObject("XY_Plane"), [""])
sketch16.MapMode = "FlatFace"
sketch16.addGeometry([
    Part.LineSegment(App.Vector(-54, 29, 0), App.Vector(-41, 5, 0)),
    Part.LineSegment(App.Vector(-41, 5, 0), App.Vector(-49, 1, 0)),
    Part.LineSegment(App.Vector(-49, 1, 0), App.Vector(-62, 24, 0)),
    Part.LineSegment(App.Vector(-62, 24, 0), App.Vector(-54, 29, 0)),
], False)
sketch16.addConstraint([
    Sketcher.Constraint("Coincident", 0, 2, 1, 1),
    Sketcher.Constraint("Coincident", 1, 2, 2, 1),
    Sketcher.Constraint("Coincident", 2, 2, 3, 1),
    Sketcher.Constraint("Coincident", 3, 2, 0, 1),
    Sketcher.Constraint("Perpendicular", 0, 1),
    Sketcher.Constraint("Perpendicular", 1, 2),
    Sketcher.Constraint("Perpendicular", 2, 3),
    Sketcher.Constraint("Angle", 0, Q("-61 deg")),
    Sketcher.Constraint("Distance", 0, Q("1.0625 in")),
    Sketcher.Constraint("Distance", 1, Q("0.375 in")),
    Sketcher.Constraint("DistanceX", 0, 2, -1, 1, Q("40.75772 mm")),
    Sketcher.Constraint("DistanceY", -1, 1, 2, 2, Q("24.288792 mm")),
])
pocket9 = body.newObject("PartDesign::Pocket", "Pocket008")
pocket9.Profile = sketch16
pocket9.Length = Q("0.25 in")
pocket9.Reversed = True

# Sketch on XY plane
sketch17 = body.newObject("Sketcher::SketchObject", "Sketch016")
sketch17.AttachmentSupport = (doc.getObject("XY_Plane"), [""])
sketch17.MapMode = "FlatFace"
sketch17.AttachmentOffset = App.Placement(App.Vector(0, 0, 0.25 * 25.4), App.Rotation())
sketch17.addGeometry([
    Part.Circle(App.Vector(-54.5, 20.3, 0), App.Vector(0, 0, 1), 2.2),
    Part.Circle(App.Vector(-48.4, 9.2, 0), App.Vector(0, 0, 1), 2.2),
], False)
sketch17.addConstraint([
    Sketcher.Constraint("Equal", 0, 1),
    Sketcher.Constraint("Diameter", 0, Q("0.177 in")),
    Sketcher.Constraint("DistanceY", 1, 3, 0, 3, Q("11.10767 mm")),
    Sketcher.Constraint("DistanceX", 0, 3, -1, 1, Q("54.543538 mm")),
    Sketcher.Constraint("DistanceY", -1, 1, 0, 3, Q("20.349633 mm")),
    Sketcher.Constraint("DistanceX", 1, 3, -1, 1, Q("48.386455 mm")),
])
doc.recompute()
hole5 = body.newObject("PartDesign::Hole", "Hole004")
hole5.Profile = sketch17
hole5.ThreadType = "None"
hole5.Diameter = Q("0.177 in")
hole5.DepthType = "ThroughAll"
hole5.Reversed = True

# Sketch on XY plane
sketch18 = body.newObject("Sketcher::SketchObject", "Sketch017")
sketch18.AttachmentSupport = (doc.getObject("XY_Plane"), [""])
sketch18.MapMode = "FlatFace"
sketch18.addGeometry([
    Part.LineSegment(App.Vector(-68, 18, 0), App.Vector(-61, 22, 0)),
    Part.LineSegment(App.Vector(-61, 22, 0), App.Vector(-51, 3, 0)),
    Part.LineSegment(App.Vector(-51, 3, 0), App.Vector(-58, 0, 0)),
    Part.LineSegment(App.Vector(-58, 0, 0), App.Vector(-68, 18, 0)),
], False)
sketch18.addConstraint([
    Sketcher.Constraint("Coincident", 0, 2, 1, 1),
    Sketcher.Constraint("Coincident", 1, 2, 2, 1),
    Sketcher.Constraint("Coincident", 2, 2, 3, 1),
    Sketcher.Constraint("Coincident", 3, 2, 0, 1),
    Sketcher.Constraint("Perpendicular", 0, 1),
    Sketcher.Constraint("Perpendicular", 1, 2),
    Sketcher.Constraint("Perpendicular", 2, 3),
    Sketcher.Constraint("Angle", 0, Q("29 deg")),
    Sketcher.Constraint("Distance", 0, Q("0.3125 in")),
    Sketcher.Constraint("Distance", 1, Q("0.8125 in")),
    Sketcher.Constraint("DistanceY", -1, 1, 1, 2, Q("3.46191 mm")),
    Sketcher.Constraint("DistanceX", 0, 2, -1, 1, Q("60.633002 mm")),
])
pocket10 = body.newObject("PartDesign::Pocket", "Pocket009")
pocket10.Profile = sketch18
pocket10.Type = "ThroughAll"
pocket10.Reversed = True
doc.recompute()

fillet4 = body.newObject("PartDesign::Fillet", "Fillet003")
fillet4.Base = (pocket10, edges_at(pocket10, [
    (-49.088, 0.685, 3.175),
    (-40.758, 5.303, 3.175),
    (-53.842, 28.907, 3.175),
    (-62.172, 24.289, 3.175),
    (-67.575, 17.664, 6.35),
    (-50.628, 3.462, 9.525),
    (-57.57, -0.386, 6.35),
    (-60.633, 21.512, 9.525),
]))
fillet4.Radius = Q("0.1 in")

doc.recompute()
